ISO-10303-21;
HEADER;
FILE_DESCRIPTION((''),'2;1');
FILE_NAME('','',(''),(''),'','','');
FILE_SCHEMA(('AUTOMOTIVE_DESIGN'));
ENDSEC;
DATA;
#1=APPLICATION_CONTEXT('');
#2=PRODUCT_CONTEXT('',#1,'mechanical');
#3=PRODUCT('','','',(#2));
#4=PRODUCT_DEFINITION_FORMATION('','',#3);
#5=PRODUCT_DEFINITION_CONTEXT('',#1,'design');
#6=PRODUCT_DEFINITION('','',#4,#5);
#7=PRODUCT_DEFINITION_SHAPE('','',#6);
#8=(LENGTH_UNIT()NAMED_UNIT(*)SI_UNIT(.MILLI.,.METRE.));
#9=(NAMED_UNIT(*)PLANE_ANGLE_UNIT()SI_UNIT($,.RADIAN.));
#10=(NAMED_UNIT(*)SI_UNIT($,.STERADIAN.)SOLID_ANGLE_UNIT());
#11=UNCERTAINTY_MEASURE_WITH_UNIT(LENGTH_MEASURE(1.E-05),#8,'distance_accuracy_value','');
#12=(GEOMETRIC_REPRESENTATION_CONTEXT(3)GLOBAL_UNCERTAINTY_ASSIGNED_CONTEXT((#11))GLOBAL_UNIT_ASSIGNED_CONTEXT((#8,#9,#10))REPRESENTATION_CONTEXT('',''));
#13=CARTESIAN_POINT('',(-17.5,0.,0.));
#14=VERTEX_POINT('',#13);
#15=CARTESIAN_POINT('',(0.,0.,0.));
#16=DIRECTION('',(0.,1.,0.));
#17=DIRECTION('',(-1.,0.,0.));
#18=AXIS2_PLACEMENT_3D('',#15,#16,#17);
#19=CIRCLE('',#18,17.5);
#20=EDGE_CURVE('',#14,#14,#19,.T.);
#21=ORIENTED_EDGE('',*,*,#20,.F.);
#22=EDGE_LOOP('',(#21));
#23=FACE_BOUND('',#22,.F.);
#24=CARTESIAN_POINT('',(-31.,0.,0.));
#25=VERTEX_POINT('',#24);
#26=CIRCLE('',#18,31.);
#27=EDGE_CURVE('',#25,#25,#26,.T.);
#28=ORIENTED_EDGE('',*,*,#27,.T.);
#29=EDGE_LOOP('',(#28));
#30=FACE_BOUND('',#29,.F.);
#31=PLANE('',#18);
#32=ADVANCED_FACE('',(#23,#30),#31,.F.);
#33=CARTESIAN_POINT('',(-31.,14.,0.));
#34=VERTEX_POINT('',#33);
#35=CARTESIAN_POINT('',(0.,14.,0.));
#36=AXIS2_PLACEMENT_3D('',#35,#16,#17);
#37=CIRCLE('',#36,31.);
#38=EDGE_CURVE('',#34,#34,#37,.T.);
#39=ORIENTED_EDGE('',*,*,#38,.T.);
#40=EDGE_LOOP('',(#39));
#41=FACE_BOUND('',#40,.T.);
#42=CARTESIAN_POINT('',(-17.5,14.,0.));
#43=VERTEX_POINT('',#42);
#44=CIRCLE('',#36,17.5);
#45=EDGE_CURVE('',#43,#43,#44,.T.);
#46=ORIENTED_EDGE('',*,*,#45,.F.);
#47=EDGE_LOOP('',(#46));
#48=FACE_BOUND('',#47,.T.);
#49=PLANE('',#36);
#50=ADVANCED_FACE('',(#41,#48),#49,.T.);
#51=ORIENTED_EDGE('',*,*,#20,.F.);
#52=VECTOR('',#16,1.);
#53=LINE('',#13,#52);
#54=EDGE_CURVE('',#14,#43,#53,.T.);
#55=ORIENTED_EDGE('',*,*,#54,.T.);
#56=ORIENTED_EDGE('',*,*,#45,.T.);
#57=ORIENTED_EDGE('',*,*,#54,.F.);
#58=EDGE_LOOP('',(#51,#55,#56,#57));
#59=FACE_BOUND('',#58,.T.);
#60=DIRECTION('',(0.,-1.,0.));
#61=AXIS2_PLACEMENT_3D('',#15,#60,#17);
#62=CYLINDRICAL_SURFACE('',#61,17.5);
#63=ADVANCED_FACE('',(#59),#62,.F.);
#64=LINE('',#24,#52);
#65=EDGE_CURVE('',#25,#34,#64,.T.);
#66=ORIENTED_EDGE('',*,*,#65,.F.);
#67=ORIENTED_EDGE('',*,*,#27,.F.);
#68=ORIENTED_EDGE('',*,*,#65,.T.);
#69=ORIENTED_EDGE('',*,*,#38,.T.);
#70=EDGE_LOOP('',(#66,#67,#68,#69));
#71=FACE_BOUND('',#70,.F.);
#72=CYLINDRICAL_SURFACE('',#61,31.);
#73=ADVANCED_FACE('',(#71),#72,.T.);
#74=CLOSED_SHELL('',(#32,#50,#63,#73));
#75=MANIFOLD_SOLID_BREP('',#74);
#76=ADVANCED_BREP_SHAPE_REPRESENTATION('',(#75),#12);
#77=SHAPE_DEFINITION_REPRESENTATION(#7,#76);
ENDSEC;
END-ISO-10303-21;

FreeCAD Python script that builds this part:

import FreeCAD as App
import Part
import Sketcher
from FreeCAD import Vector

doc = App.newDocument("Part")
params = doc.addObject("Spreadsheet::Sheet", "Params")
for row, (alias, value) in enumerate([
    ("sketch1_diameter", "62 mm"),
    ("sketch1_diameter2", "35 mm"),
    ("pad1_length", "14 mm"),
], start=1):
    params.set(f"A{row}", alias)
    params.set(f"B{row}", "=" + value)
    params.setAlias(f"B{row}", alias)

body = doc.addObject("PartDesign::Body", "Body")

# Sketch on XZ plane
sketch1 = body.newObject("Sketcher::SketchObject", "Sketch")
sketch1.AttachmentSupport = (doc.getObject("XZ_Plane"), [""])
sketch1.MapMode = "FlatFace"
sketch1.addGeometry([
    Part.Circle(Vector(0, 0, 0), Vector(0, 0, 1), 31),
    Part.Circle(Vector(0, 0, 0), Vector(0, 0, 1), 18),
], False)
sketch1.addConstraint([
    Sketcher.Constraint("Coincident", 0, 3, -1, 1),
    Sketcher.Constraint("Coincident", 1, 3, -1, 1),
    Sketcher.Constraint("Diameter", 0, 62.0),
    Sketcher.Constraint("Diameter", 1, 35.0),
])
sketch1.setExpression("Constraints[2]", "Params.sketch1_diameter")
sketch1.setExpression("Constraints[3]", "Params.sketch1_diameter2")
pad1 = body.newObject("PartDesign::Pad", "Pad")
pad1.Profile = sketch1
pad1.setExpression("Length", "Params.pad1_length")
pad1.Reversed = True

doc.recompute()
